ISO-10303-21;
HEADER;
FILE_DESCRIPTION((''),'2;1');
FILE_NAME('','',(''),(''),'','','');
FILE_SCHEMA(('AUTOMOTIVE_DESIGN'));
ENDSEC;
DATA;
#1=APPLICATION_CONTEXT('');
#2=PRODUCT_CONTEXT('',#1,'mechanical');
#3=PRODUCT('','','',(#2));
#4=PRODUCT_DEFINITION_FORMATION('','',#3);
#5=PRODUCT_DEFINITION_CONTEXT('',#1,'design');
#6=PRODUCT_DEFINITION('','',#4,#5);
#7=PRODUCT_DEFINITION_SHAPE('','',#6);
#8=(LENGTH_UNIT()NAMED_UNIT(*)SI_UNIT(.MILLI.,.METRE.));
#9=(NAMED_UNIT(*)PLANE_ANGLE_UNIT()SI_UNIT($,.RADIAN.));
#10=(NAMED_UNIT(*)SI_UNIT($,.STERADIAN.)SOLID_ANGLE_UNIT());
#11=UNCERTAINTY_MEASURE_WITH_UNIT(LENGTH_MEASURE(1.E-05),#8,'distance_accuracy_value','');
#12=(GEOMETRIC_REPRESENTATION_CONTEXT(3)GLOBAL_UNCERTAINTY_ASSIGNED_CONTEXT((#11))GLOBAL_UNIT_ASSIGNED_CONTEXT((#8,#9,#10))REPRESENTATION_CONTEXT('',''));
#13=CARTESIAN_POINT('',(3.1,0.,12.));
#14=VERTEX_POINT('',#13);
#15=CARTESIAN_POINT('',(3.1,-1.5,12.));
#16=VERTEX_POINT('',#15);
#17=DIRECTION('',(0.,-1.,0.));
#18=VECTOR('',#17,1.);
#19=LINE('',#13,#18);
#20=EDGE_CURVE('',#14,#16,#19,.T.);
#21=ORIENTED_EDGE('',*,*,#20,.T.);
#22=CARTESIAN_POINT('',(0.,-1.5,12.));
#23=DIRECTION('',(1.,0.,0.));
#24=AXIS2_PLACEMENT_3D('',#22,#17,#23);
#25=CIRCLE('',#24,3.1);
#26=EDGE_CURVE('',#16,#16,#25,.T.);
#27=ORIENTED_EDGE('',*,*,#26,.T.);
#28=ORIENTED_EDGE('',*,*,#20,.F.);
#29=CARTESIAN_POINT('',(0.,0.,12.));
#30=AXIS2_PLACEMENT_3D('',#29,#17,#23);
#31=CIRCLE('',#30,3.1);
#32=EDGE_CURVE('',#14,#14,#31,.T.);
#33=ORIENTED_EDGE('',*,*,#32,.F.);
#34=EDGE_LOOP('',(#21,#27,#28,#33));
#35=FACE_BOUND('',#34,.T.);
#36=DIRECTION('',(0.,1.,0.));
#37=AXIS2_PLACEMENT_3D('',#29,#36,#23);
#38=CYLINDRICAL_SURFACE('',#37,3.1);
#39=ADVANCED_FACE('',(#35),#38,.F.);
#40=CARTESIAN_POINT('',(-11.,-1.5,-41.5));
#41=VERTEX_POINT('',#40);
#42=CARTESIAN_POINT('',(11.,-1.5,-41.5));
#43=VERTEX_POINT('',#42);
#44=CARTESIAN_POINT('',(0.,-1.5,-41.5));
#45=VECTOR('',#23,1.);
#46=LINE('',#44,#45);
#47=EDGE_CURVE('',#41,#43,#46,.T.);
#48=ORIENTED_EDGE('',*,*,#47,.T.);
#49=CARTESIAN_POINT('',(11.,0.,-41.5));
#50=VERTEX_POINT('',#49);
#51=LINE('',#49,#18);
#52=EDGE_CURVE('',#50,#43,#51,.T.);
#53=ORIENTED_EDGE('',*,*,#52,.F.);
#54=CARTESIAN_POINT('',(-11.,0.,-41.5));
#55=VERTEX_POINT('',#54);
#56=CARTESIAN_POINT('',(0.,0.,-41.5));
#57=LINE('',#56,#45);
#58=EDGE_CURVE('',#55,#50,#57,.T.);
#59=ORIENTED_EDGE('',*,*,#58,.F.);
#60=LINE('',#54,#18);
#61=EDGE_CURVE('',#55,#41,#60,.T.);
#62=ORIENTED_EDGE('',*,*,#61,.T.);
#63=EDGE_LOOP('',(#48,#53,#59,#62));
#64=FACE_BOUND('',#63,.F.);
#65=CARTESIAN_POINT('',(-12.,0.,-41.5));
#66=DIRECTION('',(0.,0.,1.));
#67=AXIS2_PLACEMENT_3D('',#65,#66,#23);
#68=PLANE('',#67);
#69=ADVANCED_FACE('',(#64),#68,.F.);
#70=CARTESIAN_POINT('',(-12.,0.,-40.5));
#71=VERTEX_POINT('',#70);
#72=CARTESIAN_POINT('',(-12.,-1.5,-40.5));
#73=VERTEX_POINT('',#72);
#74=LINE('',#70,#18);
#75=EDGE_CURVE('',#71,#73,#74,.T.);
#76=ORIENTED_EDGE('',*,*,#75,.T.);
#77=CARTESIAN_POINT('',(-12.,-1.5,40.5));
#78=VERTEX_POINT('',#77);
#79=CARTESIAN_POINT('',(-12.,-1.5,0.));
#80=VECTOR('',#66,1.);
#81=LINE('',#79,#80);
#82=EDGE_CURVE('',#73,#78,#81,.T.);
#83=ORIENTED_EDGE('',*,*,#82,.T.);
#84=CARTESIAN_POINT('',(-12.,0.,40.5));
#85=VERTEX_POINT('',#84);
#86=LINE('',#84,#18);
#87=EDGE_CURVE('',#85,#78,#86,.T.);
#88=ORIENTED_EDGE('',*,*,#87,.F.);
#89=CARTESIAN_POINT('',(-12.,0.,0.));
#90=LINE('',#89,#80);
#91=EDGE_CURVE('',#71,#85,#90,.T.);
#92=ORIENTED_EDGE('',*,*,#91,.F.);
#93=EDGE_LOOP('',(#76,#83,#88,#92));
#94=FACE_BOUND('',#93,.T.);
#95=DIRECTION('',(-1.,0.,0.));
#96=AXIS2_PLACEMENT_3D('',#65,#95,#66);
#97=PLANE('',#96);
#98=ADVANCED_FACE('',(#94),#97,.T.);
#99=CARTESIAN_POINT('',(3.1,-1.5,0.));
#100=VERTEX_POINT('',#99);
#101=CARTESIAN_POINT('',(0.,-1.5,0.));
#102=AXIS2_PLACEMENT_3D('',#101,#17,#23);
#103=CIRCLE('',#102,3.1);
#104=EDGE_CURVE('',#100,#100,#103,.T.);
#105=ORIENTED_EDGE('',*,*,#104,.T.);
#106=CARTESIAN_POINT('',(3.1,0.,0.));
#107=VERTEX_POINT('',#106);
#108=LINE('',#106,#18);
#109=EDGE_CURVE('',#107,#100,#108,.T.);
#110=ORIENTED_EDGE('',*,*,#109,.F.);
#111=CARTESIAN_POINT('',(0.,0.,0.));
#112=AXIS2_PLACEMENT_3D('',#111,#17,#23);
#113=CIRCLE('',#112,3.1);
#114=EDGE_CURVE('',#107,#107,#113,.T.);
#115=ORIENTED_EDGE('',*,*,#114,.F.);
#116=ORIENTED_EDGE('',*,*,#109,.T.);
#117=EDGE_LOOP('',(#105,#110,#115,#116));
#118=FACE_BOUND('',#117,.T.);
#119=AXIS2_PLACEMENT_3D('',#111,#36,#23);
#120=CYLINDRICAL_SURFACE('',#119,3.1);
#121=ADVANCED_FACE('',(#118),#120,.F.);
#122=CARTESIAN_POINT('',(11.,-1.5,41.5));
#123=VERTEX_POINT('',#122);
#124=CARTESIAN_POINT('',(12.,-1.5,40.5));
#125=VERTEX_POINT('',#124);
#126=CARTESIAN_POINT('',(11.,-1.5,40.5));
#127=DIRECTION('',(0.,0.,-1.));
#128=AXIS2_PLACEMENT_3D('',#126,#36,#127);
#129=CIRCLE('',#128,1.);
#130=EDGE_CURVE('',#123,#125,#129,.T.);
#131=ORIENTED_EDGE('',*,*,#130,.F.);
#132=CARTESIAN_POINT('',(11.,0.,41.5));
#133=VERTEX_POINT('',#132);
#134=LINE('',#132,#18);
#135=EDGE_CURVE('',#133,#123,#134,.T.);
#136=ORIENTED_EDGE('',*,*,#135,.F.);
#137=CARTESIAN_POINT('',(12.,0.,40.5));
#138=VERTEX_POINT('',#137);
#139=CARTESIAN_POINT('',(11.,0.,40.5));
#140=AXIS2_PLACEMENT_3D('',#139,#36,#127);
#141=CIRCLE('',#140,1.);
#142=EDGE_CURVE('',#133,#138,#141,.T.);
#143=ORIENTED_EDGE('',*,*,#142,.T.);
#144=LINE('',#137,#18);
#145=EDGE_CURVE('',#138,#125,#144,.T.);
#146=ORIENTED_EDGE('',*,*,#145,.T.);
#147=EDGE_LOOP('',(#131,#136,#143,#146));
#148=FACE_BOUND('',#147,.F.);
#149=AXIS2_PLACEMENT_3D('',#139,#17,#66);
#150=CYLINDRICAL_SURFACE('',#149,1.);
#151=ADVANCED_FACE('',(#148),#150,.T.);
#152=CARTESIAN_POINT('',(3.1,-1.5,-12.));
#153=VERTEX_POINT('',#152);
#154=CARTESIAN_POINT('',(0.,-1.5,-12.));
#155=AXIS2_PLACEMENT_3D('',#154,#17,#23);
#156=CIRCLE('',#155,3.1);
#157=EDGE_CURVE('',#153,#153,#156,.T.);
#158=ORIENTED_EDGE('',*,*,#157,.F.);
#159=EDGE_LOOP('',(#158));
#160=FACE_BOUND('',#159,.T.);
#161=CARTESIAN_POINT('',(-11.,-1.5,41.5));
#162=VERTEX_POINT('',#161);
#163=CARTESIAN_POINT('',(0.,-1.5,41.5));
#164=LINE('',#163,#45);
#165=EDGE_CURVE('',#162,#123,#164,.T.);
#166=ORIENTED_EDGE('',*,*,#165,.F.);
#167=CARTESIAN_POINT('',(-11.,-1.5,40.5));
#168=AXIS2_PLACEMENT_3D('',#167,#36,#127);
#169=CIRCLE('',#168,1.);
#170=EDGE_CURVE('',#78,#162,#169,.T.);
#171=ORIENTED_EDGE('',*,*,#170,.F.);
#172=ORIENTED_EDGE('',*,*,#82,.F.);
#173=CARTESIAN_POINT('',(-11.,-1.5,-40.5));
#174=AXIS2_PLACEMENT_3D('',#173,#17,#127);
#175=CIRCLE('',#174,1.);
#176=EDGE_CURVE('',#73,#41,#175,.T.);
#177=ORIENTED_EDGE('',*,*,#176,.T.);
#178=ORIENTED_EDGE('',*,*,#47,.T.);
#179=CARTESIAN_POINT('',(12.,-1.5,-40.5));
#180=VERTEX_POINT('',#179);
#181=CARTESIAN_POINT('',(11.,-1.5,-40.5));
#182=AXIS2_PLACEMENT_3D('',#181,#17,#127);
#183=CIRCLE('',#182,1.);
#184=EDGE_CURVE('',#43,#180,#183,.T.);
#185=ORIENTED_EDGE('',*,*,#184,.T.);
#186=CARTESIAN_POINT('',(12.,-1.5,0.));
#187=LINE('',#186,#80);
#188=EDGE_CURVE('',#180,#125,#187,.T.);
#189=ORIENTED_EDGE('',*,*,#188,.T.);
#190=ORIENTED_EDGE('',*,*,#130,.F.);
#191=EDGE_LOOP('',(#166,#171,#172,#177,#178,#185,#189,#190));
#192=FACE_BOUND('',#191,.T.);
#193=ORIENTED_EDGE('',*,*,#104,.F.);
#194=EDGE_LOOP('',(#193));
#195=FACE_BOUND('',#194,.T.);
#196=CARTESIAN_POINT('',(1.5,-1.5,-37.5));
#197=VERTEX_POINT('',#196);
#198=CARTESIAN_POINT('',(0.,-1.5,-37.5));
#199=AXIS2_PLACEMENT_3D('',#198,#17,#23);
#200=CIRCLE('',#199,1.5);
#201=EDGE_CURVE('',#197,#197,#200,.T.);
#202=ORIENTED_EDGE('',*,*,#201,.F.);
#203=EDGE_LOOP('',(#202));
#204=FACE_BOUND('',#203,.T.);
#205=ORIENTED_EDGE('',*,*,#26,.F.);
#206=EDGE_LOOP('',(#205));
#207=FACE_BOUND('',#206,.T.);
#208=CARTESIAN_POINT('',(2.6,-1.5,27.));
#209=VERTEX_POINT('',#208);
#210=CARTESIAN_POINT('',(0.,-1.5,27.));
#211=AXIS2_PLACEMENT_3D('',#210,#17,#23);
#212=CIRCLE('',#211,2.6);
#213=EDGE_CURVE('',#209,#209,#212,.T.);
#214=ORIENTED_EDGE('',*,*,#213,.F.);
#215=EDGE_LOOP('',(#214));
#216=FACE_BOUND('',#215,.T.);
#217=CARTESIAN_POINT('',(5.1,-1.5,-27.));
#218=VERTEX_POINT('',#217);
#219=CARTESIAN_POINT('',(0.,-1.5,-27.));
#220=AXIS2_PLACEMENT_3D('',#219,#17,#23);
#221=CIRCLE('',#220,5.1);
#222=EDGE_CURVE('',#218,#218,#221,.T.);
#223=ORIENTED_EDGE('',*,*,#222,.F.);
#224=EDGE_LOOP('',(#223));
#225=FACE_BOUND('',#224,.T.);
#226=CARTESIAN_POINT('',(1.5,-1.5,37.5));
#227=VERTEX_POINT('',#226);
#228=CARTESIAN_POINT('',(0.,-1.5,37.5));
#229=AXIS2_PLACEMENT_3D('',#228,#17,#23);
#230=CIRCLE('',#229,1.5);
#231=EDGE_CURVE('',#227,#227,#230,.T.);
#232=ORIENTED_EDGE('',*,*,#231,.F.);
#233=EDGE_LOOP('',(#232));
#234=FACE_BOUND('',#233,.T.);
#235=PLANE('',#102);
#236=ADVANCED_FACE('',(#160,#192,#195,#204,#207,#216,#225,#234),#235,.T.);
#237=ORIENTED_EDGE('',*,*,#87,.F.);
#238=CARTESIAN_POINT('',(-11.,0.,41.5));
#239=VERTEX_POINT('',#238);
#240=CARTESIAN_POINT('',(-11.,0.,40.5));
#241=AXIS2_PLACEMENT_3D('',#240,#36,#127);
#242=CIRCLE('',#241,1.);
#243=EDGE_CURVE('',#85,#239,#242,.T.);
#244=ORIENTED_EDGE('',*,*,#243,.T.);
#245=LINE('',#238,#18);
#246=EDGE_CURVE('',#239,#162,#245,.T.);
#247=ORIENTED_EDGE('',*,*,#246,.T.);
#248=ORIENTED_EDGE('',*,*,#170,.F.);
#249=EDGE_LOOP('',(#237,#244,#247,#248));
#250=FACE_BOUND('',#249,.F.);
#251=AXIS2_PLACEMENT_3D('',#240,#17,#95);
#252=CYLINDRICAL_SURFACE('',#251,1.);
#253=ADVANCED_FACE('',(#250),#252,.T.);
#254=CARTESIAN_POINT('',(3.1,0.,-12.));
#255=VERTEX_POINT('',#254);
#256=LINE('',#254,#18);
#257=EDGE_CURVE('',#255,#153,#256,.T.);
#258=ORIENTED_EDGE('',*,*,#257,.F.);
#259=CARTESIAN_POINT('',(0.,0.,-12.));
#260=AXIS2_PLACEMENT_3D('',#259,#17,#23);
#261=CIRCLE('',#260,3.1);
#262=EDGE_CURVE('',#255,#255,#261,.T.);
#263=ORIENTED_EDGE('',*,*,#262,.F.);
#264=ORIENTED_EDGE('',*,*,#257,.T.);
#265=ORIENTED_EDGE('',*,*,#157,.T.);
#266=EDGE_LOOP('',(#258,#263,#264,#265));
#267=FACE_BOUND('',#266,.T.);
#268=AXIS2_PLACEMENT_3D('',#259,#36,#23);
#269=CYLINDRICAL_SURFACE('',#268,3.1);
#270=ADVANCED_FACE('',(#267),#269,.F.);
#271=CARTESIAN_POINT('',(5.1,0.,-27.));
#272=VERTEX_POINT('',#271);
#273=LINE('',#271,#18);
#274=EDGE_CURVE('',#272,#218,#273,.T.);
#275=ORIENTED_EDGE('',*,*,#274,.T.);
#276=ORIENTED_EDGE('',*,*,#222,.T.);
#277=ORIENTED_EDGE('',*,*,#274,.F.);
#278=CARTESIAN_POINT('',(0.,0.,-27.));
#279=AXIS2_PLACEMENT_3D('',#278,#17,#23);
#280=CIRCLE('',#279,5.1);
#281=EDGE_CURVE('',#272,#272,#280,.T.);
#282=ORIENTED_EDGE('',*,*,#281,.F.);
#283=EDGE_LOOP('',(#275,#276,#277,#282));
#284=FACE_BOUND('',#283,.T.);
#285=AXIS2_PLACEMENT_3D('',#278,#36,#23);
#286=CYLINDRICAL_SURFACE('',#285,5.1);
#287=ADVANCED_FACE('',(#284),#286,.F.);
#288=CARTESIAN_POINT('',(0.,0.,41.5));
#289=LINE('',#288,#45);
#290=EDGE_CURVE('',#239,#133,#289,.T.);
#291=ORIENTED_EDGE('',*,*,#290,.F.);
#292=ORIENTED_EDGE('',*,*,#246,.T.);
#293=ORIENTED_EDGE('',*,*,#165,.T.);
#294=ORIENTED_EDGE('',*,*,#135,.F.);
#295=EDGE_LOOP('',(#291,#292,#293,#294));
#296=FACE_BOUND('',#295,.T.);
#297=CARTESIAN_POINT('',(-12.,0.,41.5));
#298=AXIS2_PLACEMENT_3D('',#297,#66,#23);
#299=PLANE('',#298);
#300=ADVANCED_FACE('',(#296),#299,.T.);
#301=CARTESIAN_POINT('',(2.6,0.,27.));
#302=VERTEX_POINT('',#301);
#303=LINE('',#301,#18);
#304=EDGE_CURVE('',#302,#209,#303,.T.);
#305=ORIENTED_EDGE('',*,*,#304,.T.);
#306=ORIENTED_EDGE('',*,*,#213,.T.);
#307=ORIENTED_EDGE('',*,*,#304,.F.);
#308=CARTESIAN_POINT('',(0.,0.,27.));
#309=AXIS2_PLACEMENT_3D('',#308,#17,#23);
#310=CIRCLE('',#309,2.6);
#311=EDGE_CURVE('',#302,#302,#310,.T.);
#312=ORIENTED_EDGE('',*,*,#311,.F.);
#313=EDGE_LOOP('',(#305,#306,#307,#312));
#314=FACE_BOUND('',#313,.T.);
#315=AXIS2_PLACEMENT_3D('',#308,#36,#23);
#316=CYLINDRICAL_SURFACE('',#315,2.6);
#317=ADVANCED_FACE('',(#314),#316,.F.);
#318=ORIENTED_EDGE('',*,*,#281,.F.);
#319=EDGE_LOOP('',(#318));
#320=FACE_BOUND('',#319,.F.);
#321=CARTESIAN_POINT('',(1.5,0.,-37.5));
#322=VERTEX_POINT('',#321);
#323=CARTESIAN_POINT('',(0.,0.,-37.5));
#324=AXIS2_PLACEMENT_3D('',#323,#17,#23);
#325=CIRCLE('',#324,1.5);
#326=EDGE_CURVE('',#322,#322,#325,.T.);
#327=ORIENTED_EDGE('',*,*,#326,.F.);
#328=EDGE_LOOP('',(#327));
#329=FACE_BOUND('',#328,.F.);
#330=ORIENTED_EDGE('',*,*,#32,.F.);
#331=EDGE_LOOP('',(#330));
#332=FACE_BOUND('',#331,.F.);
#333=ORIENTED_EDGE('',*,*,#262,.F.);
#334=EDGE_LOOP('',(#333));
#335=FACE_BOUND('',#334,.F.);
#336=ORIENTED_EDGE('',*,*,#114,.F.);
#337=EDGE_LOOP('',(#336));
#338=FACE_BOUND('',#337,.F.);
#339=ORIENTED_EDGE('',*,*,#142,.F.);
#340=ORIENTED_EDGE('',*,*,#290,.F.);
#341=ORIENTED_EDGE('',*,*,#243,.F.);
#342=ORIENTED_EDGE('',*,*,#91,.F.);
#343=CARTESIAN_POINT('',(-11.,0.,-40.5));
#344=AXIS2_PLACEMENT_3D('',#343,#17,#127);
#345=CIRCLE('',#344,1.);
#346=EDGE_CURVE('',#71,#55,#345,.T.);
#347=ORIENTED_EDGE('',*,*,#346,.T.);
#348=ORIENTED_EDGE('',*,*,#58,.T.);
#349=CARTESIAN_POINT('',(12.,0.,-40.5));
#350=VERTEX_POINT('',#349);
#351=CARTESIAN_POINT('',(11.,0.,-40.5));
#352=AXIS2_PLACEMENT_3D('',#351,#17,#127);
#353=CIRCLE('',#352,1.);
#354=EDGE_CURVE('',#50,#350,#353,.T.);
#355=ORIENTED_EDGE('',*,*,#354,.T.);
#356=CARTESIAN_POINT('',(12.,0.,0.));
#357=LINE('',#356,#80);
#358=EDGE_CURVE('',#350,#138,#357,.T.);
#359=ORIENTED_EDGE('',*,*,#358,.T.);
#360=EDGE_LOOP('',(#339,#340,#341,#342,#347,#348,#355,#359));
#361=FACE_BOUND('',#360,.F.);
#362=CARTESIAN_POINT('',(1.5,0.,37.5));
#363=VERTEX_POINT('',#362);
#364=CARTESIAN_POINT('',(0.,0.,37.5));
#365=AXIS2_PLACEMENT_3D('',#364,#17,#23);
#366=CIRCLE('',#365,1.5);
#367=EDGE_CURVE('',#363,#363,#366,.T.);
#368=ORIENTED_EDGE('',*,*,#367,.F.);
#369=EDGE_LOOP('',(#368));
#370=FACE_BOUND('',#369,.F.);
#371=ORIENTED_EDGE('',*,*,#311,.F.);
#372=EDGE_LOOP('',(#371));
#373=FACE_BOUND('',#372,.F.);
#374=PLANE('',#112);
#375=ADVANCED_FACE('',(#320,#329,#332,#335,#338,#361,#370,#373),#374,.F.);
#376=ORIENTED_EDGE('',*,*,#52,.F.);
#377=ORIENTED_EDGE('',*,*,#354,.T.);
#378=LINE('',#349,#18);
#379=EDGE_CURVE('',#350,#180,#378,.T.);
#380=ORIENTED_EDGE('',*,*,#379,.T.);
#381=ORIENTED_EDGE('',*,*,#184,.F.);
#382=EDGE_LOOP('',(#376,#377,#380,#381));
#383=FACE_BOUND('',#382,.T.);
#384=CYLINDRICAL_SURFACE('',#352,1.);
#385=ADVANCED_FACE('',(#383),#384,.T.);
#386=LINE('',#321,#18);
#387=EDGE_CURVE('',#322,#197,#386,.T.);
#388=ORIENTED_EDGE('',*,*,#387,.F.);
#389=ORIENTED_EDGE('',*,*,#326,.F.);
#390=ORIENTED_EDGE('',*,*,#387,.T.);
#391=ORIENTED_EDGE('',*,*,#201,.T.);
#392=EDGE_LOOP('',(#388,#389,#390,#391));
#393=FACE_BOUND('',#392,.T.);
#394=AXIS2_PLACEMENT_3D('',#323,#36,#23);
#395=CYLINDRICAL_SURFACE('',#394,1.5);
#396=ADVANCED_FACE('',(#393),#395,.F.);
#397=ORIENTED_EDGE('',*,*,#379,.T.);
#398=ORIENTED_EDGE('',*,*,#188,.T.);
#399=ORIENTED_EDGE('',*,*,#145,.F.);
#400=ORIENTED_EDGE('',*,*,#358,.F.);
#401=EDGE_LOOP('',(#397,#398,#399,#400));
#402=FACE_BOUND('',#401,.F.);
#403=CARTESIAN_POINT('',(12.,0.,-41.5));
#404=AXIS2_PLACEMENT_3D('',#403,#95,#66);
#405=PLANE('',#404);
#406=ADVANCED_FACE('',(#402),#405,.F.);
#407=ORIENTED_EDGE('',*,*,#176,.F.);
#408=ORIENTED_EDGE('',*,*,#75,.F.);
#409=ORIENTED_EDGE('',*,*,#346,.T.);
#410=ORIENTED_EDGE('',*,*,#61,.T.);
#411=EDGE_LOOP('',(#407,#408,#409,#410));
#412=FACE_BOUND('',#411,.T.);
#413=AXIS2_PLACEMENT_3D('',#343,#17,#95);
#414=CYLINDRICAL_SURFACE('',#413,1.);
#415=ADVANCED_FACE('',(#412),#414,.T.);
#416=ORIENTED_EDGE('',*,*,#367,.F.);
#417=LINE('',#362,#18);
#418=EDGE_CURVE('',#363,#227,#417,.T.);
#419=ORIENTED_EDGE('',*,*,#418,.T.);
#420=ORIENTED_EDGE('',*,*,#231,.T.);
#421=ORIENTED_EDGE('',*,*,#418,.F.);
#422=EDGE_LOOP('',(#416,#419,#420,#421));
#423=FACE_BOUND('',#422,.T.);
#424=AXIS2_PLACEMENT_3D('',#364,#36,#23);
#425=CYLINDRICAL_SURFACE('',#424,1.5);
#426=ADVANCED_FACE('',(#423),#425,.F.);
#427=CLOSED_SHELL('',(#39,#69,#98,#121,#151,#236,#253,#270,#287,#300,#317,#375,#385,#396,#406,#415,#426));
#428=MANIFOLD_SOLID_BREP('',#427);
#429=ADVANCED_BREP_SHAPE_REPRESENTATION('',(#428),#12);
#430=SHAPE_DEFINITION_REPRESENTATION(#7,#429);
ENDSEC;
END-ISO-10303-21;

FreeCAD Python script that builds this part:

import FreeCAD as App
import Part
import Sketcher

V = App.Vector
Q = App.Units.Quantity


def edges_at(feature, points):
    """Names of the edges that pass closest to the given points."""
    edges = feature.Shape.Edges
    near = lambda p: min(range(len(edges)), key=lambda i: edges[i].distToShape(Part.Vertex(*p))[0])
    return sorted({f"Edge{near(p) + 1}" for p in points})


def add_polygon(sketch, points):
    """Adds a closed chain of lines whose ends are joined by coincident constraints."""
    first, n = sketch.GeometryCount, len(points)
    for a, b in zip(points, points[1:] + points[:1]):
        sketch.addGeometry(Part.LineSegment(App.Vector(*a, 0), App.Vector(*b, 0)), False)
    for i in range(n):
        sketch.addConstraint(Sketcher.Constraint("Coincident", first + i, 2, first + (i + 1) % n, 1))

doc = App.newDocument("Part")
body = doc.addObject("PartDesign::Body", "Body")

# Sketch on XZ plane
sketch1 = body.newObject("Sketcher::SketchObject", "Sketch")
sketch1.AttachmentSupport = (doc.getObject("XZ_Plane"), [""])
sketch1.MapMode = "FlatFace"
add_polygon(sketch1, [(-12, 41.5), (-12, -41.5), (12, -41.5), (12, 41.5)])  # lines 0-3
sketch1.addGeometry(Part.Circle(V(0, -37.5, 0), V(0, 0, 1), 1.5), False)  # 4
sketch1.addGeometry(Part.Circle(V(0, -27, 0), V(0, 0, 1), 5.1), False)  # 5
sketch1.addGeometry(Part.Circle(V(0, -12, 0), V(0, 0, 1), 3.1), False)  # 6
sketch1.addGeometry(Part.Circle(V(0, 0, 0), V(0, 0, 1), 3.1), False)  # 7
sketch1.addGeometry(Part.Circle(V(0, 12, 0), V(0, 0, 1), 3.1), False)  # 8
sketch1.addGeometry(Part.Circle(V(0, 27, 0), V(0, 0, 1), 2.6), False)  # 9
sketch1.addGeometry(Part.Circle(V(0, 37.5, 0), V(0, 0, 1), 1.5), False)  # 10
sketch1.addConstraint([
    Sketcher.Constraint("Vertical", 0),
    Sketcher.Constraint("Horizontal", 1),
    Sketcher.Constraint("Vertical", 2),
    Sketcher.Constraint("Horizontal", 3),
    Sketcher.Constraint("Coincident", 7, 3, -1, 1),
    Sketcher.Constraint("Equal", 6, 7),
    Sketcher.Constraint("Equal", 7, 8),
    Sketcher.Constraint("Equal", 4, 10),
    Sketcher.Constraint("Symmetric", 6, 3, 8, 3, -1, 1),
    Sketcher.Constraint("Symmetric", 5, 3, 9, 3, -1, 1),
    Sketcher.Constraint("Symmetric", 4, 3, 10, 3, -1, 1),
    Sketcher.Constraint("Symmetric", 0, 2, 2, 2, -1, 1),
    Sketcher.Constraint("PointOnObject", 4, 3, -2),
    Sketcher.Constraint("PointOnObject", 5, 3, -2),
    Sketcher.Constraint("PointOnObject", 6, 3, -2),
    Sketcher.Constraint("Diameter", 4, Q("3 mm")),
    Sketcher.Constraint("Diameter", 5, Q("10.2 mm")),
    Sketcher.Constraint("Diameter", 6, Q("6.2 mm")),
    Sketcher.Constraint("Diameter", 9, Q("5.2 mm")),
    Sketcher.Constraint("DistanceX", 1, 1, 1, 2, Q("24 mm")),
    Sketcher.Constraint("DistanceY", 0, 2, 0, 1, Q("83 mm")),
    Sketcher.Constraint("DistanceY", 5, 3, -1, 1, Q("27 mm")),
    Sketcher.Constraint("DistanceY", 6, 3, -1, 1, Q("12 mm")),
    Sketcher.Constraint("DistanceY", 0, 2, 4, 3, Q("4 mm")),
])
pad1 = body.newObject("PartDesign::Pad", "Pad")
pad1.Profile = sketch1
pad1.Length = 1.5
doc.recompute()

fillet = body.newObject("PartDesign::Fillet", "Fillet")
fillet.Base = (pad1, edges_at(pad1, [
    (-12, -0.75, 41.5),
    (12, -0.75, 41.5),
    (12, -0.75, -41.5),
    (-12, -0.75, -41.5),
]))
fillet.Radius = 1

doc.recompute()
